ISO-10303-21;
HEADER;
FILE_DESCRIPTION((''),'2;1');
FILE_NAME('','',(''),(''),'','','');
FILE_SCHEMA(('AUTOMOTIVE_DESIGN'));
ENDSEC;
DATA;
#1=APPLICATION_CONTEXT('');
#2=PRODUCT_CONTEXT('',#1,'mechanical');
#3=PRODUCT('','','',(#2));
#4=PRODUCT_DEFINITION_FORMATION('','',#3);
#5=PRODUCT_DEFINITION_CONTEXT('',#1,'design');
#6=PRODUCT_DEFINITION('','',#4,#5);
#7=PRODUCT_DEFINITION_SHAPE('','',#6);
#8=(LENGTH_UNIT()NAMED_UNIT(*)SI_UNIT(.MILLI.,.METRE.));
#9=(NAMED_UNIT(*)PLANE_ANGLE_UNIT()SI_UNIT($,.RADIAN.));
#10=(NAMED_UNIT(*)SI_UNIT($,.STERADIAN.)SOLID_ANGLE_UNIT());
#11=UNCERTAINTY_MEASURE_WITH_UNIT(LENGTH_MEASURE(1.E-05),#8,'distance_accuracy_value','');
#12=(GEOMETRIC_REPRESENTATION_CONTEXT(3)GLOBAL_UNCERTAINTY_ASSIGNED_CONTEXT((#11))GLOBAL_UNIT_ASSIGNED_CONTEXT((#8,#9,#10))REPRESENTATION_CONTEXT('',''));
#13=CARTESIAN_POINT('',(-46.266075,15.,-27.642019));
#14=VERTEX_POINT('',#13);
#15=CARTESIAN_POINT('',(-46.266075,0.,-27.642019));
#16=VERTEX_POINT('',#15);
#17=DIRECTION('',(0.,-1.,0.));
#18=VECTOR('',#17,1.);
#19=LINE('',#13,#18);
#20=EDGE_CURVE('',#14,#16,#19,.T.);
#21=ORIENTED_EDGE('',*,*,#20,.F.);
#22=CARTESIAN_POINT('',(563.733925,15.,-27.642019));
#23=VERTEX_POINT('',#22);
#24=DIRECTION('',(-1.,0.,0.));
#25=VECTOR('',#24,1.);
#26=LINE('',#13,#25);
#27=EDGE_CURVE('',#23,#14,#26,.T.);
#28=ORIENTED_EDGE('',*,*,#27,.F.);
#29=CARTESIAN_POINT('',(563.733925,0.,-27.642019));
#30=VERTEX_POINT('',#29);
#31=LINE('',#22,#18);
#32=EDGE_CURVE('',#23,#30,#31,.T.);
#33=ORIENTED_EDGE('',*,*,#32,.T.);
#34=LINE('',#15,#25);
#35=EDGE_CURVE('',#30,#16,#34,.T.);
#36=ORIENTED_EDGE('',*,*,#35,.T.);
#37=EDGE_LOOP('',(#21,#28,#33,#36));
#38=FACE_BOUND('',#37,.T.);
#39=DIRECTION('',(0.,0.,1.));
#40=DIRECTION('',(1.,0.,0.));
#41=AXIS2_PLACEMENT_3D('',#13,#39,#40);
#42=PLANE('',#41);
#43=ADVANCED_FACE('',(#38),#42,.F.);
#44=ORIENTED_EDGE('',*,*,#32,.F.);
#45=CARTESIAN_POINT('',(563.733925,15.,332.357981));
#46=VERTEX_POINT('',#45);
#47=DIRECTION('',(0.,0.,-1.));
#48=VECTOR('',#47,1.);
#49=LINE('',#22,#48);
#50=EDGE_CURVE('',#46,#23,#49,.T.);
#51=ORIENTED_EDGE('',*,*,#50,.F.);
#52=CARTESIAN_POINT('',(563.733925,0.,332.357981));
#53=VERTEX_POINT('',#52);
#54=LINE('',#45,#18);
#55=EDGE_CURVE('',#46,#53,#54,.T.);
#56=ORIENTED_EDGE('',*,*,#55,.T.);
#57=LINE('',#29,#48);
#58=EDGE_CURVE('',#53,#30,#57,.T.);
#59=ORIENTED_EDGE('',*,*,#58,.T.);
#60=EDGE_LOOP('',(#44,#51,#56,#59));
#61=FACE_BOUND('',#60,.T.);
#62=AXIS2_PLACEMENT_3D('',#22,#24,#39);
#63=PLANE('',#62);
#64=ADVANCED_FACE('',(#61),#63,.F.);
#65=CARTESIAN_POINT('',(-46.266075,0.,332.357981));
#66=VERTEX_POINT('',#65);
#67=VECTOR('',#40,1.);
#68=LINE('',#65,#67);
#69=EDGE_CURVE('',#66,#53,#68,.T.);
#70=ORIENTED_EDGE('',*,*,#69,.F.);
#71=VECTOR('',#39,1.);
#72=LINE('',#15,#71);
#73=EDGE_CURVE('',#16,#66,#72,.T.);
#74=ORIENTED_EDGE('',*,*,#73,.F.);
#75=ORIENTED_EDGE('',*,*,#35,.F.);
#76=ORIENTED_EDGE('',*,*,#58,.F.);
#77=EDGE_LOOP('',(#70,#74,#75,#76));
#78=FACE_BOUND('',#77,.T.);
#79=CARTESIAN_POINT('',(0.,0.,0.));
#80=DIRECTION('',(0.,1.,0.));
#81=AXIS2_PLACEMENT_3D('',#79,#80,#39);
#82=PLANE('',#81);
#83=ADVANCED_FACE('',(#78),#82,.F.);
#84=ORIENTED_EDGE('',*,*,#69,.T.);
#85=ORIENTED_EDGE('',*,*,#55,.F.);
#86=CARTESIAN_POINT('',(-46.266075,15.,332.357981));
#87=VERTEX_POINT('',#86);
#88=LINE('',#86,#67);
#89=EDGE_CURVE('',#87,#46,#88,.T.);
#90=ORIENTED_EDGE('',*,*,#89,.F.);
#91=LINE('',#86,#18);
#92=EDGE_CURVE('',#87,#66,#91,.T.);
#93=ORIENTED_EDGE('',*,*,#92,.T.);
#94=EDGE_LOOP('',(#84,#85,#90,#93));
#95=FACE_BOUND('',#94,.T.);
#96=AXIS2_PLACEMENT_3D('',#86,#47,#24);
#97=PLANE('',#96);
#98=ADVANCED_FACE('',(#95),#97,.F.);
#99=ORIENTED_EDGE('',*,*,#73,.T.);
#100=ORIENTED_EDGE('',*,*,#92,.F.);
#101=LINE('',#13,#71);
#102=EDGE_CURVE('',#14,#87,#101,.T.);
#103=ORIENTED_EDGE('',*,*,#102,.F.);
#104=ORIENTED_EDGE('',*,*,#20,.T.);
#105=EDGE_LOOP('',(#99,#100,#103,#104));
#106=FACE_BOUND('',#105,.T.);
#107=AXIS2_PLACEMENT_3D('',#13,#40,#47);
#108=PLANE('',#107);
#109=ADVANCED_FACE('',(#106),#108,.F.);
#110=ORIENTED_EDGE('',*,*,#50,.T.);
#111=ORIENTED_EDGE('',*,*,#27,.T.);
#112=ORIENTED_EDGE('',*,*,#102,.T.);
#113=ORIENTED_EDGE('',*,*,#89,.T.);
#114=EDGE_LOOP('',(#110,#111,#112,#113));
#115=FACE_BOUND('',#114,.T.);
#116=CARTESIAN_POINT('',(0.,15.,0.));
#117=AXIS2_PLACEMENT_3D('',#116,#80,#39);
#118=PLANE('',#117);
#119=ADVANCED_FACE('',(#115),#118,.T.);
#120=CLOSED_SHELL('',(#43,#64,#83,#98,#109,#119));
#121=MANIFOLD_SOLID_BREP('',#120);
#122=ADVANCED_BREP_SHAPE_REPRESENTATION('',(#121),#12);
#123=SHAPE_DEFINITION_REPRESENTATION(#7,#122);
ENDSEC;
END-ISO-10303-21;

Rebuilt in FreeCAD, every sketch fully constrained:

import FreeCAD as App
import Part
import Sketcher
from FreeCAD import Vector
Q = App.Units.Quantity

doc = App.newDocument("Part")
body = doc.addObject("PartDesign::Body", "Body")

# Sketch on XZ plane
sketch1 = doc.addObject("Sketcher::SketchObject", "Sketch")
body.addObject(sketch1)
sketch1.AttachmentSupport = (doc.XZ_Plane, [""])
sketch1.MapMode = "FlatFace"
sketch1.addGeometry([
    Part.LineSegment(Vector(-46.266075, -27.642019, 0), Vector(-46.266075, 332.357981, 0)),
    Part.LineSegment(Vector(-46.266075, 332.357981, 0), Vector(563.733925, 332.357981, 0)),
    Part.LineSegment(Vector(563.733925, 332.357981, 0), Vector(563.733925, -27.642019, 0)),
    Part.LineSegment(Vector(563.733925, -27.642019, 0), Vector(-46.266075, -27.642019, 0)),
], False)
sketch1.addConstraint([
    Sketcher.Constraint("Coincident", 0, 2, 1, 1),
    Sketcher.Constraint("Coincident", 1, 2, 2, 1),
    Sketcher.Constraint("Coincident", 2, 2, 3, 1),
    Sketcher.Constraint("Coincident", 3, 2, 0, 1),
    Sketcher.Constraint("Vertical", 0),
    Sketcher.Constraint("Horizontal", 1),
    Sketcher.Constraint("Vertical", 2),
    Sketcher.Constraint("Horizontal", 3),
    Sketcher.Constraint("DistanceX", 1, 1, 1, 2, Q("610 mm")),
    Sketcher.Constraint("DistanceY", 0, 1, 0, 2, Q("360 mm")),
    Sketcher.Constraint("DistanceY", -1, 1, 0, 2, Q("332.357981 mm")),
    Sketcher.Constraint("DistanceX", 0, 2, -1, 1, Q("46.266075 mm")),
])
pad1 = doc.addObject("PartDesign::Pad", "Pad")
body.addObject(pad1)
pad1.Profile = sketch1
pad1.Length = 15
pad1.Reversed = True

doc.recompute()
